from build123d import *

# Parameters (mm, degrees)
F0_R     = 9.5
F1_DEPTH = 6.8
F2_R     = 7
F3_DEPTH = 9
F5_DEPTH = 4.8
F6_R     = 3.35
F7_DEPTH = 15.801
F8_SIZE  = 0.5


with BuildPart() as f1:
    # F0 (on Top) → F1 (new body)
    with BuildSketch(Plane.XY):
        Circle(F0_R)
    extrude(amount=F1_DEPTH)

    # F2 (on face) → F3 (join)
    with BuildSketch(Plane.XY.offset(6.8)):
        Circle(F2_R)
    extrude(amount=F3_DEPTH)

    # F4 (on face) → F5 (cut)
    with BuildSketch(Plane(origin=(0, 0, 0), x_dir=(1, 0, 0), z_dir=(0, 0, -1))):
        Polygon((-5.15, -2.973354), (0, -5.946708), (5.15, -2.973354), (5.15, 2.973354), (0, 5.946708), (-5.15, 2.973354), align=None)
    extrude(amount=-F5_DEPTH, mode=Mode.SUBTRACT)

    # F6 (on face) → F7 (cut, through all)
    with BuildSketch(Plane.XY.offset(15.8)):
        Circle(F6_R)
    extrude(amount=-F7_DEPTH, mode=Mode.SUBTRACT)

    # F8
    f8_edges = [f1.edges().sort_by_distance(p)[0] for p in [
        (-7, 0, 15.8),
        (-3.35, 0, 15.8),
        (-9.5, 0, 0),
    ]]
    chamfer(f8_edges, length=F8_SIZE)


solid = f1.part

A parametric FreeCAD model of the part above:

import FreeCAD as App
import Part
import Sketcher
from FreeCAD import Vector
Q = App.Units.Quantity


def edges_at(feature, points):
    """Names of the edges that pass closest to the given points."""
    edges = feature.Shape.Edges
    near = lambda p: min(range(len(edges)), key=lambda i: edges[i].distToShape(Part.Vertex(*p))[0])
    return sorted({f"Edge{near(p) + 1}" for p in points})


def add_polygon(sketch, points):
    """Adds a closed chain of lines whose ends are joined by coincident constraints."""
    first, n = sketch.GeometryCount, len(points)
    for a, b in zip(points, points[1:] + points[:1]):
        sketch.addGeometry(Part.LineSegment(App.Vector(*a, 0), App.Vector(*b, 0)), False)
    for i in range(n):
        sketch.addConstraint(Sketcher.Constraint("Coincident", first + i, 2, first + (i + 1) % n, 1))

doc = App.newDocument("Part")
params = doc.addObject("Spreadsheet::Sheet", "Params")
for row, (alias, value) in enumerate([
    ("sketch1_diameter", "19 mm"),
    ("pad1_length", "6.8 mm"),
    ("sketch2_diameter", "14 mm"),
    ("pad2_length", "9 mm"),
    ("pocket1_length", "4.8 mm"),
    ("sketch4_diameter", "6.7 mm"),
    ("chamfer_size", "0.5 mm"),
], start=1):
    params.set(f"A{row}", alias)
    params.set(f"B{row}", "=" + value)
    params.setAlias(f"B{row}", alias)

body = doc.addObject("PartDesign::Body", "Body")

# Sketch on XY plane
sketch1 = doc.addObject("Sketcher::SketchObject", "Sketch")
body.addObject(sketch1)
sketch1.AttachmentSupport = (doc.XY_Plane, [""])
sketch1.MapMode = "FlatFace"
sketch1.addGeometry(Part.Circle(Vector(0, 0, 0), Vector(0, 0, 1), 10), False)
sketch1.addConstraint(Sketcher.Constraint("Coincident", 0, 3, -1, 1))
sketch1.addConstraint(Sketcher.Constraint("Diameter", 0, 19.0))
sketch1.setExpression("Constraints[1]", "Params.sketch1_diameter")
pad1 = doc.addObject("PartDesign::Pad", "Pad")
body.addObject(pad1)
pad1.Profile = sketch1
pad1.setExpression("Length", "Params.pad1_length")

# Sketch on XY plane
sketch2 = doc.addObject("Sketcher::SketchObject", "Sketch001")
body.addObject(sketch2)
sketch2.AttachmentSupport = (doc.XY_Plane, [""])
sketch2.MapMode = "FlatFace"
sketch2.AttachmentOffset = App.Placement(Vector(0, 0, 6.8), App.Rotation())
sketch2.addGeometry(Part.Circle(Vector(0, 0, 0), Vector(0, 0, 1), 7), False)
sketch2.addConstraint(Sketcher.Constraint("Coincident", 0, 3, -1, 1))
sketch2.addConstraint(Sketcher.Constraint("Diameter", 0, 14.0))
sketch2.setExpression("Constraints[1]", "Params.sketch2_diameter")
pad2 = doc.addObject("PartDesign::Pad", "Pad001")
body.addObject(pad2)
pad2.Profile = sketch2
pad2.setExpression("Length", "Params.pad2_length")

# Sketch on XY plane
sketch3 = doc.addObject("Sketcher::SketchObject", "Sketch002")
body.addObject(sketch3)
sketch3.AttachmentSupport = (doc.XY_Plane, [""])
sketch3.MapMode = "FlatFace"
add_polygon(sketch3, [(-5, 3), (0, 6), (5, 3), (5, -3), (0, -6), (-5, -3)])  # lines 0-5
sketch3.addConstraint(Sketcher.Constraint("Vertical", 2))
sketch3.addConstraint(Sketcher.Constraint("Vertical", 5))
sketch3.addConstraint(Sketcher.Constraint("Symmetric", 0, 2, 3, 2, -1, 1))
sketch3.addConstraint(Sketcher.Constraint("Symmetric", 1, 2, 4, 2, -1, 1))
sketch3.addConstraint(Sketcher.Constraint("PointOnObject", 0, 2, -2))
sketch3.addConstraint(Sketcher.Constraint("Parallel", 0, 3))
sketch3.addConstraint(Sketcher.Constraint("Horizontal", 2, 2, 4, 2))
sketch3.addConstraint(Sketcher.Constraint("Angle", 0, Q("30.000001 deg")))
sketch3.addConstraint(Sketcher.Constraint("DistanceX", 4, 2, 2, 2, 10.3))
sketch3.addConstraint(Sketcher.Constraint("DistanceY", 2, 2, 2, 1, 5.946708))
pocket1 = doc.addObject("PartDesign::Pocket", "Pocket")
body.addObject(pocket1)
pocket1.Profile = sketch3
pocket1.setExpression("Length", "Params.pocket1_length")
pocket1.Reversed = True

# Sketch on XY plane
sketch4 = doc.addObject("Sketcher::SketchObject", "Sketch003")
body.addObject(sketch4)
sketch4.AttachmentSupport = (doc.XY_Plane, [""])
sketch4.MapMode = "FlatFace"
sketch4.AttachmentOffset = App.Placement(Vector(0, 0, 15.8), App.Rotation())
sketch4.addGeometry(Part.Circle(Vector(0, 0, 0), Vector(0, 0, 1), 3.4), False)
sketch4.addConstraint(Sketcher.Constraint("Coincident", 0, 3, -1, 1))
sketch4.addConstraint(Sketcher.Constraint("Diameter", 0, 6.7))
sketch4.setExpression("Constraints[1]", "Params.sketch4_diameter")
pocket2 = doc.addObject("PartDesign::Pocket", "Pocket001")
body.addObject(pocket2)
pocket2.Profile = sketch4
pocket2.Type = "ThroughAll"
doc.recompute()

chamfer = doc.addObject("PartDesign::Chamfer", "Chamfer")
body.addObject(chamfer)
chamfer.Base = (pocket2, edges_at(pocket2, [(-7, 0, 15.8), (-3.35, 0, 15.8), (-9.5, 0, 0)]))
chamfer.setExpression("Size", "Params.chamfer_size")

doc.recompute()
